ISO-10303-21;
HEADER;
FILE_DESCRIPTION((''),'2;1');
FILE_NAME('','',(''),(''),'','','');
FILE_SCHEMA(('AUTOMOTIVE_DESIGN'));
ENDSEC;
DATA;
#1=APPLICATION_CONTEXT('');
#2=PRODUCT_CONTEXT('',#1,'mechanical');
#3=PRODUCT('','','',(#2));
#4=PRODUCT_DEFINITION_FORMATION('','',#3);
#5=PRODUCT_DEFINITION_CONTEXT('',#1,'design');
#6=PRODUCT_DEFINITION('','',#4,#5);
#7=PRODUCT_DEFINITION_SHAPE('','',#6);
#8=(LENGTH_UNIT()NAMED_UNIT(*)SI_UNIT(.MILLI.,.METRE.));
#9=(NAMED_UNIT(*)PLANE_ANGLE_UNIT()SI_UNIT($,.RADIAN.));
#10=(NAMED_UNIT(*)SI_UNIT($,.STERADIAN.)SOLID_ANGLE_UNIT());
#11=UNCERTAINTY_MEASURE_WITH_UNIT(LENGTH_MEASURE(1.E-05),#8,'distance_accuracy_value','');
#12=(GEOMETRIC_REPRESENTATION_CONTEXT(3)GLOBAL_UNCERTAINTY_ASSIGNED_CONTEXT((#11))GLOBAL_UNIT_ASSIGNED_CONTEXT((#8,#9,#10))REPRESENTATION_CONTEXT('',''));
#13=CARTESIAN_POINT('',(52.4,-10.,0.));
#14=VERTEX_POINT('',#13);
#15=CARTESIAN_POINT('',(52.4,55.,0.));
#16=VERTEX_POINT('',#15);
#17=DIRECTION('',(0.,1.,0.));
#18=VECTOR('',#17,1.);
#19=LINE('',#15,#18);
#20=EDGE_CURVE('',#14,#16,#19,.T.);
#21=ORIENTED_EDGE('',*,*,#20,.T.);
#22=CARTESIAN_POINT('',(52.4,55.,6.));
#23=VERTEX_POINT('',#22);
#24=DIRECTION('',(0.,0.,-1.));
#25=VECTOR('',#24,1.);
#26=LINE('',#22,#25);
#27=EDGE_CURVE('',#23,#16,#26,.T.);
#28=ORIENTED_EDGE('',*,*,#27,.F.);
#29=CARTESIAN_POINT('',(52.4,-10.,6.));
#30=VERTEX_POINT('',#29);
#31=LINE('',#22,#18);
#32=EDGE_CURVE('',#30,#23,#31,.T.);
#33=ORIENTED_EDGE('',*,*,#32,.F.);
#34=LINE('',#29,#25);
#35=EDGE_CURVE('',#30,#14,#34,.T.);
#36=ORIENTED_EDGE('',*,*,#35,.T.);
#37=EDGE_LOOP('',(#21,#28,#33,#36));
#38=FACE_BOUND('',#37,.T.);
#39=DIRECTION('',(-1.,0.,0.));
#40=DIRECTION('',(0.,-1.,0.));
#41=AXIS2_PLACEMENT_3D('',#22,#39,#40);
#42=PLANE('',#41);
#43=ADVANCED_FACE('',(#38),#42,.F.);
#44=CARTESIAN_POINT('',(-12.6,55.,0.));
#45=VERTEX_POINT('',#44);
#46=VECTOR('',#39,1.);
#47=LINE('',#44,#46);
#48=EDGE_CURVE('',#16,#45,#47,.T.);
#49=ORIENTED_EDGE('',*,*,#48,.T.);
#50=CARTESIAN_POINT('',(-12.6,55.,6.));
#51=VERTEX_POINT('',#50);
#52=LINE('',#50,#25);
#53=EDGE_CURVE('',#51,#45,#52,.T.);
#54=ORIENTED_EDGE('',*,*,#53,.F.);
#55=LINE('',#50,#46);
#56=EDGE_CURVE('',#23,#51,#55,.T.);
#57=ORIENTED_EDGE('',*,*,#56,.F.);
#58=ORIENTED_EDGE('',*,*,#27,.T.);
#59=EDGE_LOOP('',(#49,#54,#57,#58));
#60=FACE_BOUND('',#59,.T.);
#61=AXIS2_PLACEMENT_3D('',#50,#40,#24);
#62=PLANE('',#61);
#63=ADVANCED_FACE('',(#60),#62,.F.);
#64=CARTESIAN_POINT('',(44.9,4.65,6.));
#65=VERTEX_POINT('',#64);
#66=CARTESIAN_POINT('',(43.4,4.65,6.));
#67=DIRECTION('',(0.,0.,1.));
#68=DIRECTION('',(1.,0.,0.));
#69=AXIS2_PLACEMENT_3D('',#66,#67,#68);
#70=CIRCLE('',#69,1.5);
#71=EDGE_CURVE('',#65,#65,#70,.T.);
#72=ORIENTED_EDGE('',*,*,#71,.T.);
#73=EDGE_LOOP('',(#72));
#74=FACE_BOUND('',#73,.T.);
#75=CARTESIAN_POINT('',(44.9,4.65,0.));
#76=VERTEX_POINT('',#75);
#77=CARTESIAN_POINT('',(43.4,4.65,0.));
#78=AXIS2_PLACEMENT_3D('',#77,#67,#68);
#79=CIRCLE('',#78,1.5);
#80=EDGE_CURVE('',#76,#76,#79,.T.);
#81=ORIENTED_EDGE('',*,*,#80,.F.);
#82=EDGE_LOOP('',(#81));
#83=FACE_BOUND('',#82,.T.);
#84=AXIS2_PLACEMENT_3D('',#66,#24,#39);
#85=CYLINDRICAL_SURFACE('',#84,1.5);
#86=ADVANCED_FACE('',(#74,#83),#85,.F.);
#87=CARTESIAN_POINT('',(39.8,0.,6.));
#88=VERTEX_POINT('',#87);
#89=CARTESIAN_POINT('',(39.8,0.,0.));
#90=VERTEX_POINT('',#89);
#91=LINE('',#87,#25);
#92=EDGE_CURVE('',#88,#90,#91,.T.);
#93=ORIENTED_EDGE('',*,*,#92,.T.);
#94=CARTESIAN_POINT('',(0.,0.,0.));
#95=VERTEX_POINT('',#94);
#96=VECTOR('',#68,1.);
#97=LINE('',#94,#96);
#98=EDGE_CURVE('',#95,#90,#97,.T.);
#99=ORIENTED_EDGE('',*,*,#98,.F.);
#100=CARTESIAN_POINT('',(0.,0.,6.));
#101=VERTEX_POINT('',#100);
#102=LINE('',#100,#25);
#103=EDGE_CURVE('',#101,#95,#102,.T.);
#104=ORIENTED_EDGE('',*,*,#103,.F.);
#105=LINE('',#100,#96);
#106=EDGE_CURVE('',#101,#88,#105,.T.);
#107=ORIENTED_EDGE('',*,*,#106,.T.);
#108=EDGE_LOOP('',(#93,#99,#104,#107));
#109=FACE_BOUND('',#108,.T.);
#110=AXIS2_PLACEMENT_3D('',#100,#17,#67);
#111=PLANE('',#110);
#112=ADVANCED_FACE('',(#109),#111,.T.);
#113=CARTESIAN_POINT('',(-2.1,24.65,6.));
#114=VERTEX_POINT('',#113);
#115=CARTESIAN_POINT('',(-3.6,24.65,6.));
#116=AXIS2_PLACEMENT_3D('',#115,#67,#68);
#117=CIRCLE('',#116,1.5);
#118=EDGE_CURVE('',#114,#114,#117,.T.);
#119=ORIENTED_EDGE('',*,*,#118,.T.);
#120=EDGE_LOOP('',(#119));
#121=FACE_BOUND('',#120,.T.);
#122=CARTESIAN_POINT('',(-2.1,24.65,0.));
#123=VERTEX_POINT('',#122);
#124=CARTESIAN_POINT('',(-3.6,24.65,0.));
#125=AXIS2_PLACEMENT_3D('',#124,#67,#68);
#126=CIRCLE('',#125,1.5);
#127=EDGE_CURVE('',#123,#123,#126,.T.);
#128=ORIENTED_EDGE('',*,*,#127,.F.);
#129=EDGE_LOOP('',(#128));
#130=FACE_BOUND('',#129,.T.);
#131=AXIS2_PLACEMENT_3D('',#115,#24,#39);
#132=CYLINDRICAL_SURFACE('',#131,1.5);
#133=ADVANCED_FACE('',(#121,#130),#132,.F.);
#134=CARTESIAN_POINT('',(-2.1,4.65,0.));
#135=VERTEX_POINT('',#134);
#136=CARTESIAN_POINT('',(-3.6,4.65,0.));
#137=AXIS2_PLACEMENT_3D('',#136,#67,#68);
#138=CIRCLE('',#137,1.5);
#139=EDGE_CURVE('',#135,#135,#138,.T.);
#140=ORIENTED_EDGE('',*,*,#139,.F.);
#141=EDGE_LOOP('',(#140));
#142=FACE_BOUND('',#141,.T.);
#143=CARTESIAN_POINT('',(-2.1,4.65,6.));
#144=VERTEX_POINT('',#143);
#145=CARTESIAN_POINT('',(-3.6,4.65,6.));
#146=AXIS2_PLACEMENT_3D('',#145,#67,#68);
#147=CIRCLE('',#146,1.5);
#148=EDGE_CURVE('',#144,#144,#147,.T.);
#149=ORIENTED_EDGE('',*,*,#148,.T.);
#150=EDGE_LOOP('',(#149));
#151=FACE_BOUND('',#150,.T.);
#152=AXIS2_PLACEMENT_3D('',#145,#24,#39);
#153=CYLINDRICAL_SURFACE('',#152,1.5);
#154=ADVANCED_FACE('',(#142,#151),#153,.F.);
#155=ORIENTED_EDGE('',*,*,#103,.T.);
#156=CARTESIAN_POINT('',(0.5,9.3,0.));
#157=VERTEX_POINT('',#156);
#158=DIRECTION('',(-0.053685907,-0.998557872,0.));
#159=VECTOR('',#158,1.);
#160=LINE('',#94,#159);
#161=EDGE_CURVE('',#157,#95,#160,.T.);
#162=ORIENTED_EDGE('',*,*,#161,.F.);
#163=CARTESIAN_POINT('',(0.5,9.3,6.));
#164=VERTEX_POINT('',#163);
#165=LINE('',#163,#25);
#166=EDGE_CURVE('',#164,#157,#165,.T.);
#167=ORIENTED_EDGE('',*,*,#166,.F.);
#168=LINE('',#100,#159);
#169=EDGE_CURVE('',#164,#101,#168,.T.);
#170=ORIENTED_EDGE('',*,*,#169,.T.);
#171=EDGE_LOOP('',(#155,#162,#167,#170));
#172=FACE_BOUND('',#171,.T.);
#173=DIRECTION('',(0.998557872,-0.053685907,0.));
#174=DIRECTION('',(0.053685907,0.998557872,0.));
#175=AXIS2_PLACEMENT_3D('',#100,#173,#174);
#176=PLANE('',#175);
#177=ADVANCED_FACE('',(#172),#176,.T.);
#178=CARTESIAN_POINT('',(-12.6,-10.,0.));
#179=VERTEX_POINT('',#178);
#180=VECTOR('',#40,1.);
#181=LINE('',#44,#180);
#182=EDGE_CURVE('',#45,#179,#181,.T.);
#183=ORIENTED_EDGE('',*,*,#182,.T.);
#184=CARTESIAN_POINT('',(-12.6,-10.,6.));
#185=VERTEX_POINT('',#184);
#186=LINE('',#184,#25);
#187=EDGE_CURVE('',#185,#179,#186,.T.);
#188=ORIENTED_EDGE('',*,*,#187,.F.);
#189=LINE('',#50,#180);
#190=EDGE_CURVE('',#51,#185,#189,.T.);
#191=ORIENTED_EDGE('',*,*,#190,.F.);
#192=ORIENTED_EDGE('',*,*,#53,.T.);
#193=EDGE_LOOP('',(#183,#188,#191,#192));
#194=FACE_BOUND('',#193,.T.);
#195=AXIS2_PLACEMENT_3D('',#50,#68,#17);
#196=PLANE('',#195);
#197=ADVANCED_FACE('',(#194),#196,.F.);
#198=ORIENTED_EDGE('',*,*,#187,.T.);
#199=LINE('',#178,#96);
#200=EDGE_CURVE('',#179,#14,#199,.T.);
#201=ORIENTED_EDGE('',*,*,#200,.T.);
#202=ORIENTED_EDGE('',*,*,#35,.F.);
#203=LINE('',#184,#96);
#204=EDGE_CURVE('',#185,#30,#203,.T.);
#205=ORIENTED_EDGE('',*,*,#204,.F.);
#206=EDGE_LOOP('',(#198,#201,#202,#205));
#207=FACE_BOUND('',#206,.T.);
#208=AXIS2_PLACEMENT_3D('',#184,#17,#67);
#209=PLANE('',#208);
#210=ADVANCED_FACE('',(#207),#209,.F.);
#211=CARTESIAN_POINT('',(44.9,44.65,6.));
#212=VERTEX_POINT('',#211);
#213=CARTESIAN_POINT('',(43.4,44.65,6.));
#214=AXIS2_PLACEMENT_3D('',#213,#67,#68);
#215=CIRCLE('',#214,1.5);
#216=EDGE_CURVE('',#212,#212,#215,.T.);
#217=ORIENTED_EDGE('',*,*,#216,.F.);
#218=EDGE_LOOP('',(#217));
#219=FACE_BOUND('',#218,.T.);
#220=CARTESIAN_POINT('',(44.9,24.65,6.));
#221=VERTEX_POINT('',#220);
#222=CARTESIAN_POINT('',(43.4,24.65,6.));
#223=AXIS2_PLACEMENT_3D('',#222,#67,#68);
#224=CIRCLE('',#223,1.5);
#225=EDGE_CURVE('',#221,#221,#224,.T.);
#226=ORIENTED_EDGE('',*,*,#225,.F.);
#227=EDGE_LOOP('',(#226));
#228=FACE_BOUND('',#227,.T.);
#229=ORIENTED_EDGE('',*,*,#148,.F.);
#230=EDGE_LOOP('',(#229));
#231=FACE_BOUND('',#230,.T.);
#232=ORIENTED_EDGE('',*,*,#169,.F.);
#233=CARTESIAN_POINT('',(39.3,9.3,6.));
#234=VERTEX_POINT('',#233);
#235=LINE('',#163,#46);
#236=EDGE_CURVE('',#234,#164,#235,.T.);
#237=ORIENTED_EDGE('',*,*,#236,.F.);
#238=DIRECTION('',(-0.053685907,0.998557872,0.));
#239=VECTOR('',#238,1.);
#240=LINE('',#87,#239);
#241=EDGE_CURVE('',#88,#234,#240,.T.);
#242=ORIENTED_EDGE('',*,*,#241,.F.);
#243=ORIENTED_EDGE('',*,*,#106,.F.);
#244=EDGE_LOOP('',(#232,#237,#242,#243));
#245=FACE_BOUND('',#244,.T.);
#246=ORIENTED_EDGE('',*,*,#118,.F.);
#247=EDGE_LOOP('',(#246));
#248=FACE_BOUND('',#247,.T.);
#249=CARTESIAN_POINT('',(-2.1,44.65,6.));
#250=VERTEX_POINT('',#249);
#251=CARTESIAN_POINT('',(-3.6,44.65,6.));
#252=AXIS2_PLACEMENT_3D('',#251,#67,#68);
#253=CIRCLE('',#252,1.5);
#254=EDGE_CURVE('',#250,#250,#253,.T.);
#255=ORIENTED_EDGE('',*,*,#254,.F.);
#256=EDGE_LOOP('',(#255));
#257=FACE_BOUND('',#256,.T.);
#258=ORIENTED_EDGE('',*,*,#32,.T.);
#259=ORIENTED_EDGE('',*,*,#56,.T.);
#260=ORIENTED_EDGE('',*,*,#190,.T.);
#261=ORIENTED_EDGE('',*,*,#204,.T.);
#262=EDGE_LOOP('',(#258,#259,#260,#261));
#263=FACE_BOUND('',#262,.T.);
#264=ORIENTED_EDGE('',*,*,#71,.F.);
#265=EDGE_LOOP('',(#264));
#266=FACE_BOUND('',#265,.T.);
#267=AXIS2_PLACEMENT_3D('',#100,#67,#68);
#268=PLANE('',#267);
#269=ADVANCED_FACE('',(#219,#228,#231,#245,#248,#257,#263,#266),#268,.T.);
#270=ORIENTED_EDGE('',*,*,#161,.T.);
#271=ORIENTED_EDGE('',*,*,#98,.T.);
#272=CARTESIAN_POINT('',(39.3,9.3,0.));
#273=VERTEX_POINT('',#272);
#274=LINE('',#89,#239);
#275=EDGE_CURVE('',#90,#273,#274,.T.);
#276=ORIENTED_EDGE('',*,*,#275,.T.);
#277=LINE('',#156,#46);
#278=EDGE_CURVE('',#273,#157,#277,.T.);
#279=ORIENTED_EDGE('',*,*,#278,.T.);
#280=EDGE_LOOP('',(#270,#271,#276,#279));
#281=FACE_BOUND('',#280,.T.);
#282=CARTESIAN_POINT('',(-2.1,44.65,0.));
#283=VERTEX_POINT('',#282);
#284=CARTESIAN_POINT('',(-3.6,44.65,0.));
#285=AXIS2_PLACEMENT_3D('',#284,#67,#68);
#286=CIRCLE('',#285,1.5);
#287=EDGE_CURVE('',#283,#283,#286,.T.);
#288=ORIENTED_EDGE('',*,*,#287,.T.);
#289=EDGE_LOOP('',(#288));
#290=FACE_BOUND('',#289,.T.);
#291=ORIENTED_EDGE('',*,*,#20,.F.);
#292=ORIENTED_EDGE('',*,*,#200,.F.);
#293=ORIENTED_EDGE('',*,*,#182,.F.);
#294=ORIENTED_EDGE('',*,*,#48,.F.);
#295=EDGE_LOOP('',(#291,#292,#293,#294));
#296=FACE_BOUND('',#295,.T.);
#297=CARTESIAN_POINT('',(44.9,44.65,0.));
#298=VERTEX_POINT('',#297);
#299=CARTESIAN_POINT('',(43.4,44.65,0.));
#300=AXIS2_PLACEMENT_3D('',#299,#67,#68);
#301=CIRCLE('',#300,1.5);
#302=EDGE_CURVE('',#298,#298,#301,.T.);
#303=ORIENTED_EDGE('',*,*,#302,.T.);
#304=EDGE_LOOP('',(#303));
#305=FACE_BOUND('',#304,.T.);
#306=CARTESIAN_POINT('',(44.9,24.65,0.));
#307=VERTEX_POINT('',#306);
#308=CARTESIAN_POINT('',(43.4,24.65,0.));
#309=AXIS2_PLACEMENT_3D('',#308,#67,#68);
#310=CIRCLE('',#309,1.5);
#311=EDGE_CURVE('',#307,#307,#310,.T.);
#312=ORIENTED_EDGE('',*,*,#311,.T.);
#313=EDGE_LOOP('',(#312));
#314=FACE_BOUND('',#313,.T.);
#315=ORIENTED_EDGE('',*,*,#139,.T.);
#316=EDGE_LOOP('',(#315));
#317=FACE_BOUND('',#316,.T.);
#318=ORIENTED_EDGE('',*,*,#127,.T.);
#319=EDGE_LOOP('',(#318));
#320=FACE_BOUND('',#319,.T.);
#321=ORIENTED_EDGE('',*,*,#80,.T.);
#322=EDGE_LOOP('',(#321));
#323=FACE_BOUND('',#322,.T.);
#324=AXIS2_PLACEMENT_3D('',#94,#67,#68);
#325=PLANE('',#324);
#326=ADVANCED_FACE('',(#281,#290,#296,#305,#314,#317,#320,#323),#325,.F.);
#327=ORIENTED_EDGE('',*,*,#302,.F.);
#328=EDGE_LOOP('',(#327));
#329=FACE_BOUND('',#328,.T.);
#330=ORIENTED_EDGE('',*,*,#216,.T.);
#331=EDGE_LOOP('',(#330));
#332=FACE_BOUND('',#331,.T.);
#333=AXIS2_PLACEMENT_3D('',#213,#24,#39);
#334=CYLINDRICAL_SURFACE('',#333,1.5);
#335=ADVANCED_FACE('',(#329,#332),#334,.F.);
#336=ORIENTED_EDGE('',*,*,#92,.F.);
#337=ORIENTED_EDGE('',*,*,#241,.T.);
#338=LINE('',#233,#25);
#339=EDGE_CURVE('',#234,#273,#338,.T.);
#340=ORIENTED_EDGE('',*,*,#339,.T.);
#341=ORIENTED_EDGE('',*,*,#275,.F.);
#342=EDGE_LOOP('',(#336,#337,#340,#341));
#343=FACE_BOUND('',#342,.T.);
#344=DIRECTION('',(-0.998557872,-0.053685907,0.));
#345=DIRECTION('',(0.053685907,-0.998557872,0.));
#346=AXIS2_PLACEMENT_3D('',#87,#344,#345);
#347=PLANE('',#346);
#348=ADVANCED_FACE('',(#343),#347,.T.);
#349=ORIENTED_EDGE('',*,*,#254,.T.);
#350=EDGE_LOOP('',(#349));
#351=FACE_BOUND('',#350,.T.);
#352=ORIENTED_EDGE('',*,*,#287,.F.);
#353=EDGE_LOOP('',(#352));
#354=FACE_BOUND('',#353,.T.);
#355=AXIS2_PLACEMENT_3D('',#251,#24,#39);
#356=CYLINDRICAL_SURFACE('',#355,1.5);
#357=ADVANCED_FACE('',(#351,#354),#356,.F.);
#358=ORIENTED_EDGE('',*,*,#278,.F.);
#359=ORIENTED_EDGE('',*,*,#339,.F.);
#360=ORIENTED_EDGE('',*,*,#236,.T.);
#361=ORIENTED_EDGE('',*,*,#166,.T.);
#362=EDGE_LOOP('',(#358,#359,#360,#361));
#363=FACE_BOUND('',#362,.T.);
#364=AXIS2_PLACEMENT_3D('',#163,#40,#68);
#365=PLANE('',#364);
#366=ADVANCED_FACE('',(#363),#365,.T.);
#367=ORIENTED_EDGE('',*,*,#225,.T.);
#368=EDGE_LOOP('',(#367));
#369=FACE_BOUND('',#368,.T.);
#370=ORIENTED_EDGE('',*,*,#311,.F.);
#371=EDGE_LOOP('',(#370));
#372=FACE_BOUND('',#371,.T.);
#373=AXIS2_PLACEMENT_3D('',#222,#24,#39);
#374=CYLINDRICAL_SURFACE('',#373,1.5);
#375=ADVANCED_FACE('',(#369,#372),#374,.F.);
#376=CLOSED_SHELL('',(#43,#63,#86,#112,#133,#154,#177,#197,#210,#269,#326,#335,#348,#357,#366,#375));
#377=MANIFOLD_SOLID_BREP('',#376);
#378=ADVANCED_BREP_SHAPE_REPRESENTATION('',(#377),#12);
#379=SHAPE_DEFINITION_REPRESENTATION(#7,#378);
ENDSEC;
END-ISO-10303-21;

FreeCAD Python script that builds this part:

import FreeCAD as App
import Part
import Sketcher
from FreeCAD import Vector
Q = App.Units.Quantity

doc = App.newDocument("Part")
body = doc.addObject("PartDesign::Body", "Body")

# Sketch on XY plane
sketch1 = body.newObject("Sketcher::SketchObject", "Sketch")
sketch1.AttachmentSupport = (doc.getObject("XY_Plane"), [""])
sketch1.MapMode = "FlatFace"
sketch1.addGeometry([
    Part.LineSegment(Vector(-12.6, 55, 0), Vector(-12.6, -10, 0)),  # 0
    Part.LineSegment(Vector(-12.6, -10, 0), Vector(52.4, -10, 0)),  # 1
    Part.LineSegment(Vector(52.4, -10, 0), Vector(52.4, 55, 0)),  # 2
    Part.LineSegment(Vector(52.4, 55, 0), Vector(-12.6, 55, 0)),  # 3
    Part.Circle(Vector(-3.6, 4.7, 0), Vector(0, 0, 1), 1.5),  # 4
    Part.LineSegment(Vector(39.8, 0, 0), Vector(0, 0, 0)),  # 5
    Part.LineSegment(Vector(0, 0, 0), Vector(0.5, 9.3, 0)),  # 6
    Part.LineSegment(Vector(0.5, 9.3, 0), Vector(39.3, 9.3, 0)),  # 7
    Part.LineSegment(Vector(39.3, 9.3, 0), Vector(39.8, 0, 0)),  # 8
    Part.Circle(Vector(43.4, 4.7, 0), Vector(0, 0, 1), 1.5),  # 9
    Part.Circle(Vector(-3.6, 24.6, 0), Vector(0, 0, 1), 1.5),  # 10
    Part.Circle(Vector(-3.6, 44.6, 0), Vector(0, 0, 1), 1.5),  # 11
    Part.Circle(Vector(43.4, 24.6, 0), Vector(0, 0, 1), 1.5),  # 12
    Part.Circle(Vector(43.4, 44.6, 0), Vector(0, 0, 1), 1.5),  # 13
], False)
sketch1.addConstraint([
    Sketcher.Constraint("Coincident", 0, 2, 1, 1),
    Sketcher.Constraint("Coincident", 1, 2, 2, 1),
    Sketcher.Constraint("Coincident", 2, 2, 3, 1),
    Sketcher.Constraint("Coincident", 3, 2, 0, 1),
    Sketcher.Constraint("Coincident", 5, 2, 6, 1),
    Sketcher.Constraint("Coincident", 6, 2, 7, 1),
    Sketcher.Constraint("Coincident", 7, 2, 8, 1),
    Sketcher.Constraint("Coincident", 8, 2, 5, 1),
    Sketcher.Constraint("Vertical", 0),
    Sketcher.Constraint("Horizontal", 1),
    Sketcher.Constraint("Vertical", 2),
    Sketcher.Constraint("Horizontal", 3),
    Sketcher.Constraint("Horizontal", 5),
    Sketcher.Constraint("Horizontal", 7),
    Sketcher.Constraint("Coincident", 5, 2, -1, 1),
    Sketcher.Constraint("Equal", 4, 9),
    Sketcher.Constraint("Equal", 9, 10),
    Sketcher.Constraint("Equal", 10, 11),
    Sketcher.Constraint("Equal", 11, 12),
    Sketcher.Constraint("Equal", 12, 13),
    Sketcher.Constraint("Horizontal", 4, 3, 9, 3),
    Sketcher.Constraint("Horizontal", 10, 3, 12, 3),
    Sketcher.Constraint("Horizontal", 11, 3, 13, 3),
    Sketcher.Constraint("Vertical", 4, 3, 10, 3),
    Sketcher.Constraint("Vertical", 10, 3, 11, 3),
    Sketcher.Constraint("Vertical", 9, 3, 12, 3),
    Sketcher.Constraint("Vertical", 12, 3, 13, 3),
    Sketcher.Constraint("Equal", 3, 0),
    Sketcher.Constraint("Equal", 6, 8),
    Sketcher.Constraint("Diameter", 4, Q("3 mm")),
    Sketcher.Constraint("DistanceX", 1, 1, 1, 2, Q("65 mm")),
    Sketcher.Constraint("DistanceX", 5, 2, 5, 1, Q("39.8 mm")),
    Sketcher.Constraint("DistanceX", 7, 1, 7, 2, Q("38.8 mm")),
    Sketcher.Constraint("DistanceY", 0, 2, -1, 1, Q("10 mm")),
    Sketcher.Constraint("DistanceX", 4, 3, 9, 3, Q("47 mm")),
    Sketcher.Constraint("DistanceY", 4, 3, 10, 3, Q("20 mm")),
    Sketcher.Constraint("DistanceY", 10, 3, 11, 3, Q("20 mm")),
    Sketcher.Constraint("DistanceX", 0, 2, 4, 3, Q("9 mm")),
    Sketcher.Constraint("DistanceX", 4, 3, -1, 1, Q("3.6 mm")),
    Sketcher.Constraint("DistanceY", -1, 1, 6, 2, Q("9.3 mm")),
    Sketcher.Constraint("DistanceY", -1, 1, 4, 3, Q("4.65 mm")),
])
pad1 = body.newObject("PartDesign::Pad", "Pad")
pad1.Profile = sketch1
pad1.Length = 6

doc.recompute()
